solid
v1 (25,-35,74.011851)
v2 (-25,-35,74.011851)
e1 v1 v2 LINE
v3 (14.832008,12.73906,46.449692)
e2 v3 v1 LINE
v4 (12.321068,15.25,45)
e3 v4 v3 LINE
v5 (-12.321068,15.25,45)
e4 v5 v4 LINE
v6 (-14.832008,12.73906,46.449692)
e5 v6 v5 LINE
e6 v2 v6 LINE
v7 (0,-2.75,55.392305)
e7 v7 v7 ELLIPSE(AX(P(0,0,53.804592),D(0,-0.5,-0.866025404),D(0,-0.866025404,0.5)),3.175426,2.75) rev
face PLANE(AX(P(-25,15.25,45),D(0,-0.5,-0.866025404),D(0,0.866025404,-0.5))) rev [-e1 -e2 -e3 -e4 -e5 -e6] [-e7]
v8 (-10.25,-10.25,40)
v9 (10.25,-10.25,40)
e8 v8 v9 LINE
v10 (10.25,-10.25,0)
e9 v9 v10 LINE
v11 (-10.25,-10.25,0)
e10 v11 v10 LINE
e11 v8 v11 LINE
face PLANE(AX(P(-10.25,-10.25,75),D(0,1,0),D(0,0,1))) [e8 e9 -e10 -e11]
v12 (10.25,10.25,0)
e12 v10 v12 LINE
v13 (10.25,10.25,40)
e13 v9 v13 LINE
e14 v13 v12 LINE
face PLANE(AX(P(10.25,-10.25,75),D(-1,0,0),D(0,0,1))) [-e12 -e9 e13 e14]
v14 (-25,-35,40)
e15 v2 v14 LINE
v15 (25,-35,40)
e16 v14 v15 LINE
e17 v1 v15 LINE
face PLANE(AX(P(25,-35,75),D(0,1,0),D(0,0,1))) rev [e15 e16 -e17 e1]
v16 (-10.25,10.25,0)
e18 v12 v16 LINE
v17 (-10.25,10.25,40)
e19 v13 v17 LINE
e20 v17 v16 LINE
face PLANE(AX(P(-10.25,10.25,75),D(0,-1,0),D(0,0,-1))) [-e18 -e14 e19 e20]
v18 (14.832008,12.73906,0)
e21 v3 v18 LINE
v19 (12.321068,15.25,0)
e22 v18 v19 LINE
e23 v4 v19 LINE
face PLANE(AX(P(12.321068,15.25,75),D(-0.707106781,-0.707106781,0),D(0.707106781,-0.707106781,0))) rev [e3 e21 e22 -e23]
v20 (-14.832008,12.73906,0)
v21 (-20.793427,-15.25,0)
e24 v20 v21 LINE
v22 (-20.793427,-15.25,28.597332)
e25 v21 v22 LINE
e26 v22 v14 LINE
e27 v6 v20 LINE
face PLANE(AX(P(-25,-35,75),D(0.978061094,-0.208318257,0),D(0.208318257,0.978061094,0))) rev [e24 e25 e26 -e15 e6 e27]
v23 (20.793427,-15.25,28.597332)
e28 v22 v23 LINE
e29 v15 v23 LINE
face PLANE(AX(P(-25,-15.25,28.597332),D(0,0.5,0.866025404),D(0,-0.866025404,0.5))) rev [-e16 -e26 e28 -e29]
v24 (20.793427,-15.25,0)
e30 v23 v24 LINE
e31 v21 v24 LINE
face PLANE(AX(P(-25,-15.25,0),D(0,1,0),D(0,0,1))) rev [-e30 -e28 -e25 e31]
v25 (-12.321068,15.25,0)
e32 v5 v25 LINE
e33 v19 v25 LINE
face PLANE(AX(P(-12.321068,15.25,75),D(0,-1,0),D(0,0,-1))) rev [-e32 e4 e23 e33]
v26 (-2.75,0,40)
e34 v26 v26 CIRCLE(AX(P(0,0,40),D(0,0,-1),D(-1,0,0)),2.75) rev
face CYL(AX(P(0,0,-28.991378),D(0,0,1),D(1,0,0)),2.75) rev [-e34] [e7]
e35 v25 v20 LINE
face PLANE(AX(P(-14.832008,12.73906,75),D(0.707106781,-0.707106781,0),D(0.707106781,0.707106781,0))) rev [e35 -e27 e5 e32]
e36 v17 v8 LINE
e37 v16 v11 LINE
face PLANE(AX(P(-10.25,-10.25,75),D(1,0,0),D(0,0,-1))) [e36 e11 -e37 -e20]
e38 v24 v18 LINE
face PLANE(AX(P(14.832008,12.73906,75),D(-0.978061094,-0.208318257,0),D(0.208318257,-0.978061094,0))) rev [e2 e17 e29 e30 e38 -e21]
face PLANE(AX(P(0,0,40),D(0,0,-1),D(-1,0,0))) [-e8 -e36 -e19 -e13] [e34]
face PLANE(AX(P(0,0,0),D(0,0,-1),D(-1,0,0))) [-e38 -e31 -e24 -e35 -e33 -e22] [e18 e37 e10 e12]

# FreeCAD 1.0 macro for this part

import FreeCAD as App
import Part
import Sketcher
from FreeCAD import Vector
Q = App.Units.Quantity

doc = App.newDocument("Part")
params = doc.addObject("Spreadsheet::Sheet", "Params")
for row, (alias, value) in enumerate([
    ("sketch1_width", "50 mm"),
    ("sketch1_width2", "20.5 mm"),
    ("pad1_length", "75 mm"),
    ("sketch2_diameter", "5.5 mm"),
    ("sketch2_width", "20.5 mm"),
    ("pad2_length", "35 mm"),
    ("sketch3_height", "40 mm"),
    ("sketch3_height2", "30 mm"),
    ("sketch3_width", "19.75 mm"),
], start=1):
    params.set(f"A{row}", alias)
    params.set(f"B{row}", "=" + value)
    params.setAlias(f"B{row}", alias)

body = doc.addObject("PartDesign::Body", "Body")

# Sketch on XY plane
sketch1 = doc.addObject("Sketcher::SketchObject", "Sketch")
body.addObject(sketch1)
sketch1.AttachmentSupport = (doc.XY_Plane, [""])
sketch1.MapMode = "FlatFace"
sketch1.addGeometry([
    Part.LineSegment(Vector(-14.832008, 12.73906, 0), Vector(-25, -35, 0)),  # 0
    Part.LineSegment(Vector(-25, -35, 0), Vector(25, -35, 0)),  # 1
    Part.LineSegment(Vector(25, -35, 0), Vector(14.832008, 12.73906, 0)),  # 2
    Part.LineSegment(Vector(14.832008, 12.73906, 0), Vector(12.321068, 15.25, 0)),  # 3
    Part.LineSegment(Vector(12.321068, 15.25, 0), Vector(-12.321068, 15.25, 0)),  # 4
    Part.LineSegment(Vector(-12.321068, 15.25, 0), Vector(-14.832008, 12.73906, 0)),  # 5
    Part.LineSegment(Vector(-10.25, -10.25, 0), Vector(-10.25, 10.25, 0)),  # 6
    Part.LineSegment(Vector(-10.25, 10.25, 0), Vector(10.25, 10.25, 0)),  # 7
    Part.LineSegment(Vector(10.25, 10.25, 0), Vector(10.25, -10.25, 0)),  # 8
    Part.LineSegment(Vector(10.25, -10.25, 0), Vector(-10.25, -10.25, 0)),  # 9
], False)
sketch1.addConstraint([
    Sketcher.Constraint("Coincident", 0, 2, 1, 1),
    Sketcher.Constraint("Coincident", 1, 2, 2, 1),
    Sketcher.Constraint("Coincident", 2, 2, 3, 1),
    Sketcher.Constraint("Coincident", 3, 2, 4, 1),
    Sketcher.Constraint("Coincident", 4, 2, 5, 1),
    Sketcher.Constraint("Coincident", 5, 2, 0, 1),
    Sketcher.Constraint("Coincident", 6, 2, 7, 1),
    Sketcher.Constraint("Coincident", 7, 2, 8, 1),
    Sketcher.Constraint("Coincident", 8, 2, 9, 1),
    Sketcher.Constraint("Coincident", 9, 2, 6, 1),
    Sketcher.Constraint("Horizontal", 1),
    Sketcher.Constraint("Horizontal", 4),
    Sketcher.Constraint("Vertical", 6),
    Sketcher.Constraint("Horizontal", 7),
    Sketcher.Constraint("Vertical", 8),
    Sketcher.Constraint("Horizontal", 9),
    Sketcher.Constraint("Symmetric", 6, 2, 8, 2, -1, 1),
    Sketcher.Constraint("Symmetric", 2, 2, 5, 2, -2),
    Sketcher.Constraint("Perpendicular", 3, 5),
    Sketcher.Constraint("Equal", 9, 6),
    Sketcher.Constraint("Equal", 0, 2),
    Sketcher.Constraint("Equal", 3, 5),
    Sketcher.Constraint("DistanceX", 1, 1, 1, 2, Q("50 mm")),
    Sketcher.Constraint("DistanceX", 7, 1, 7, 2, Q("20.5 mm")),
    Sketcher.Constraint("DistanceY", 0, 2, -1, 1, Q("35 mm")),
    Sketcher.Constraint("DistanceY", 6, 2, 4, 2, Q("5 mm")),
    Sketcher.Constraint("DistanceX", 4, 2, 4, 1, Q("24.642136 mm")),
    Sketcher.Constraint("DistanceY", -1, 1, 2, 2, Q("12.73906 mm")),
])
sketch1.setExpression("Constraints[22]", "Params.sketch1_width")
sketch1.setExpression("Constraints[23]", "Params.sketch1_width2")
pad1 = doc.addObject("PartDesign::Pad", "Pad")
body.addObject(pad1)
pad1.Profile = sketch1
pad1.setExpression("Length", "Params.pad1_length")

# Sketch on XY plane
sketch2 = doc.addObject("Sketcher::SketchObject", "Sketch001")
body.addObject(sketch2)
sketch2.AttachmentSupport = (doc.XY_Plane, [""])
sketch2.MapMode = "FlatFace"
sketch2.AttachmentOffset = App.Placement(Vector(0, 0, 75), App.Rotation())
sketch2.addGeometry([
    Part.LineSegment(Vector(-10.25, 10.25, 0), Vector(-10.25, -10.25, 0)),  # 0
    Part.LineSegment(Vector(-10.25, -10.25, 0), Vector(10.25, -10.25, 0)),  # 1
    Part.LineSegment(Vector(10.25, -10.25, 0), Vector(10.25, 10.25, 0)),  # 2
    Part.LineSegment(Vector(10.25, 10.25, 0), Vector(-10.25, 10.25, 0)),  # 3
    Part.Circle(Vector(0, 0, 0), Vector(0, 0, 1), 2.75),  # 4
], False)
sketch2.addConstraint([
    Sketcher.Constraint("Coincident", 0, 2, 1, 1),
    Sketcher.Constraint("Coincident", 1, 2, 2, 1),
    Sketcher.Constraint("Coincident", 2, 2, 3, 1),
    Sketcher.Constraint("Coincident", 3, 2, 0, 1),
    Sketcher.Constraint("Vertical", 0),
    Sketcher.Constraint("Horizontal", 1),
    Sketcher.Constraint("Vertical", 2),
    Sketcher.Constraint("Horizontal", 3),
    Sketcher.Constraint("Coincident", 4, 3, -1, 1),
    Sketcher.Constraint("Symmetric", 0, 2, 2, 2, -1, 1),
    Sketcher.Constraint("Equal", 3, 0),
    Sketcher.Constraint("Diameter", 4, Q("5.5 mm")),
    Sketcher.Constraint("DistanceX", 1, 1, 1, 2, Q("20.5 mm")),
])
sketch2.setExpression("Constraints[11]", "Params.sketch2_diameter")
sketch2.setExpression("Constraints[12]", "Params.sketch2_width")
pad2 = doc.addObject("PartDesign::Pad", "Pad001")
body.addObject(pad2)
pad2.Profile = sketch2
pad2.setExpression("Length", "Params.pad2_length")
pad2.Reversed = True

# Sketch on YZ plane
sketch3 = doc.addObject("Sketcher::SketchObject", "Sketch002")
body.addObject(sketch3)
sketch3.AttachmentSupport = (doc.YZ_Plane, [""])
sketch3.MapMode = "FlatFace"
sketch3.addGeometry([
    Part.LineSegment(Vector(-15.25, 0, 0), Vector(-15.25, 28.597332, 0)),  # 0
    Part.LineSegment(Vector(-15.25, 28.597332, 0), Vector(-35, 40, 0)),  # 1
    Part.LineSegment(Vector(-35, 40, 0), Vector(-35, 0, 0)),  # 2
    Part.LineSegment(Vector(-35, 0, 0), Vector(-15.25, 0, 0)),  # 3
    Part.LineSegment(Vector(-36.711524, 75, 0), Vector(15.25, 45, 0)),  # 4
    Part.LineSegment(Vector(15.25, 45, 0), Vector(15.25, 75, 0)),  # 5
    Part.LineSegment(Vector(15.25, 75, 0), Vector(-36.711524, 75, 0)),  # 6
], False)
sketch3.addConstraint([
    Sketcher.Constraint("Coincident", 0, 2, 1, 1),
    Sketcher.Constraint("Coincident", 1, 2, 2, 1),
    Sketcher.Constraint("Coincident", 2, 2, 3, 1),
    Sketcher.Constraint("Coincident", 3, 2, 0, 1),
    Sketcher.Constraint("Coincident", 4, 2, 5, 1),
    Sketcher.Constraint("Coincident", 5, 2, 6, 1),
    Sketcher.Constraint("Coincident", 6, 2, 4, 1),
    Sketcher.Constraint("Vertical", 0),
    Sketcher.Constraint("Vertical", 2),
    Sketcher.Constraint("Horizontal", 3),
    Sketcher.Constraint("Vertical", 5),
    Sketcher.Constraint("Horizontal", 6),
    Sketcher.Constraint("PointOnObject", 2, 2, -1),
    Sketcher.Constraint("Parallel", 1, 4),
    Sketcher.Constraint("DistanceY", 2, 2, 2, 1, Q("40 mm")),
    Sketcher.Constraint("DistanceY", 5, 1, 5, 2, Q("30 mm")),
    Sketcher.Constraint("Angle", 1, Q("150 deg")),
    Sketcher.Constraint("DistanceX", 1, 2, -1, 1, Q("35 mm")),
    Sketcher.Constraint("DistanceY", -1, 1, 4, 2, Q("45 mm")),
    Sketcher.Constraint("DistanceX", 3, 1, 3, 2, Q("19.75 mm")),
    Sketcher.Constraint("DistanceX", 0, 2, 4, 2, Q("30.5 mm")),
])
sketch3.setExpression("Constraints[14]", "Params.sketch3_height")
sketch3.setExpression("Constraints[15]", "Params.sketch3_height2")
sketch3.setExpression("Constraints[19]", "Params.sketch3_width")
pocket1 = doc.addObject("PartDesign::Pocket", "Pocket")
body.addObject(pocket1)
pocket1.Profile = sketch3
pocket1.Type = "ThroughAll"
pocket1.Midplane = True

doc.recompute()
